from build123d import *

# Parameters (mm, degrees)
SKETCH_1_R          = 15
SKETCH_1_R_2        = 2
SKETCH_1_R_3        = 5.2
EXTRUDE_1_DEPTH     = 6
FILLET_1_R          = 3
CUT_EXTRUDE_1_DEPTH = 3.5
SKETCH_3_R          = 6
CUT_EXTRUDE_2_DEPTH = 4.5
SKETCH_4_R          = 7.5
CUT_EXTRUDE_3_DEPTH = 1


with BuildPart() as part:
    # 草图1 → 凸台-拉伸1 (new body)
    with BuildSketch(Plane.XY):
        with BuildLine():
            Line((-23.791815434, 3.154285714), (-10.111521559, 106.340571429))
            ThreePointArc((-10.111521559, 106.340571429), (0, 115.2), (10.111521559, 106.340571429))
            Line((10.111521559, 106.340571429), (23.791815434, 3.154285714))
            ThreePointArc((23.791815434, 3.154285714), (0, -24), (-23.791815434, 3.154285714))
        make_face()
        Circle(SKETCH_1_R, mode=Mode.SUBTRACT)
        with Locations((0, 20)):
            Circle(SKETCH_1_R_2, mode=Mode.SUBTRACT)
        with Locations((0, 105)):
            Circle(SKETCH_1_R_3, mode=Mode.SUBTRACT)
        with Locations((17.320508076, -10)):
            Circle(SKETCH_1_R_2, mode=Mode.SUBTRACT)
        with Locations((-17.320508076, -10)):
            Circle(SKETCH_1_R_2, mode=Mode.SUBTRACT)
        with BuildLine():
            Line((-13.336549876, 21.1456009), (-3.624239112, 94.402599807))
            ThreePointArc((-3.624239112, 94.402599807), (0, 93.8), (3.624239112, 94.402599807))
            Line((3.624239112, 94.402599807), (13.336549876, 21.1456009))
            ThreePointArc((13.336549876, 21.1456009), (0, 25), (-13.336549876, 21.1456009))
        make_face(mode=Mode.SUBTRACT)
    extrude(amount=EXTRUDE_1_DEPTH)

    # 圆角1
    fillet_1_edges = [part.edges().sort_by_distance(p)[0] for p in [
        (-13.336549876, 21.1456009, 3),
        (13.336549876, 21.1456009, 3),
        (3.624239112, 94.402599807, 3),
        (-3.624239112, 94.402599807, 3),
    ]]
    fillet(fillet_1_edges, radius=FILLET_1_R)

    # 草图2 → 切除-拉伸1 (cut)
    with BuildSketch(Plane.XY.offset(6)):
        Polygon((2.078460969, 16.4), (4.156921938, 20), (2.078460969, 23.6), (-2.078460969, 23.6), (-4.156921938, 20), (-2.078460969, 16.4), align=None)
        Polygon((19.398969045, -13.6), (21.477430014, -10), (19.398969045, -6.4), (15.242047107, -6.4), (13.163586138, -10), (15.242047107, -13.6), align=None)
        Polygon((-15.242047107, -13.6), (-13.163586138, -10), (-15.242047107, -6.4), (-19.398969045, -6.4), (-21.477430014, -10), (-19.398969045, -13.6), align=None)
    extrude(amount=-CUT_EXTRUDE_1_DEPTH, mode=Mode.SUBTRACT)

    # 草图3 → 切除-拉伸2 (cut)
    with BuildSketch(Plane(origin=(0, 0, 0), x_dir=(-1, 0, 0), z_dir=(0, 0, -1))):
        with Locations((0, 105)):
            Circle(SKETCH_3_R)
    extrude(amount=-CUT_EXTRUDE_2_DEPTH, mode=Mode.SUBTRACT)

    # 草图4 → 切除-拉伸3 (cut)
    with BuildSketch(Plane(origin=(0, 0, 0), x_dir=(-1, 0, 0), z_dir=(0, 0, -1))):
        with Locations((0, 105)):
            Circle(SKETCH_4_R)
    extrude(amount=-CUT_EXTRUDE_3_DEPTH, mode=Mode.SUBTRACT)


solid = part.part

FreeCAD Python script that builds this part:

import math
import FreeCAD as App
import Part
import Sketcher
from FreeCAD import Vector
Q = App.Units.Quantity


def edges_at(feature, points):
    """Names of the edges that pass closest to the given points."""
    edges = feature.Shape.Edges
    near = lambda p: min(range(len(edges)), key=lambda i: edges[i].distToShape(Part.Vertex(*p))[0])
    return sorted({f"Edge{near(p) + 1}" for p in points})


def add_polygon(sketch, points):
    """Adds a closed chain of lines whose ends are joined by coincident constraints."""
    first, n = sketch.GeometryCount, len(points)
    for a, b in zip(points, points[1:] + points[:1]):
        sketch.addGeometry(Part.LineSegment(App.Vector(*a, 0), App.Vector(*b, 0)), False)
    for i in range(n):
        sketch.addConstraint(Sketcher.Constraint("Coincident", first + i, 2, first + (i + 1) % n, 1))

doc = App.newDocument("Part")
body = doc.addObject("PartDesign::Body", "Body")

# Sketch on XY plane
sketch1 = doc.addObject("Sketcher::SketchObject", "Sketch")
body.addObject(sketch1)
sketch1.AttachmentSupport = (doc.XY_Plane, [""])
sketch1.MapMode = "FlatFace"
sketch1.addGeometry([
    Part.LineSegment(Vector(-10.1, 106.3, 0), Vector(-23.8, 3.2, 0)),  # 0
    Part.ArcOfCircle(Part.Circle(Vector(0, 0, 0), Vector(0, 0, 1), 24), math.radians(172), math.radians(368)),  # 1
    Part.LineSegment(Vector(23.8, 3.2, 0), Vector(10.1, 106.3, 0)),  # 2
    Part.ArcOfCircle(Part.Circle(Vector(0, 105, 0), Vector(0, 0, 1), 10.2), math.radians(8), math.radians(172)),  # 3
    Part.Circle(Vector(17.3, -10, 0), Vector(0, 0, 1), 2),  # 4
    Part.Circle(Vector(0, 0, 0), Vector(0, 0, 1), 15),  # 5
    Part.Circle(Vector(-17.3, -10, 0), Vector(0, 0, 1), 2),  # 6
    Part.Circle(Vector(0, 20, 0), Vector(0, 0, 1), 2),  # 7
    Part.LineSegment(Vector(-13.3, 21.1, 0), Vector(-3.6, 94.4, 0)),  # 8
    Part.ArcOfCircle(Part.Circle(Vector(0, 105, 0), Vector(0, 0, 1), 11.2), math.radians(-109), math.radians(-71)),  # 9
    Part.LineSegment(Vector(3.6, 94.4, 0), Vector(13.3, 21.1, 0)),  # 10
    Part.ArcOfCircle(Part.Circle(Vector(0, 0, 0), Vector(0, 0, 1), 25), math.radians(58), math.radians(122)),  # 11
    Part.Circle(Vector(0, 105, 0), Vector(0, 0, 1), 5.2),  # 12
], False)
sketch1.addConstraint([
    Sketcher.Constraint("Tangent", 0, 2, 1, 1),
    Sketcher.Constraint("Tangent", 1, 2, 2, 1),
    Sketcher.Constraint("Tangent", 2, 2, 3, 1),
    Sketcher.Constraint("Tangent", 3, 2, 0, 1),
    Sketcher.Constraint("Coincident", 8, 2, 9, 1),
    Sketcher.Constraint("Coincident", 9, 2, 10, 1),
    Sketcher.Constraint("Coincident", 10, 2, 11, 1),
    Sketcher.Constraint("Coincident", 11, 2, 8, 1),
    Sketcher.Constraint("Coincident", 1, 3, -1, 1),
    Sketcher.Constraint("Coincident", 5, 3, -1, 1),
    Sketcher.Constraint("Coincident", 11, 3, -1, 1),
    Sketcher.Constraint("Coincident", 9, 3, 3, 3),
    Sketcher.Constraint("Coincident", 12, 3, 3, 3),
    Sketcher.Constraint("Equal", 4, 6),
    Sketcher.Constraint("Equal", 6, 7),
    Sketcher.Constraint("Symmetric", 4, 3, 6, 3, -2),
    Sketcher.Constraint("Symmetric", 8, 2, 9, 2, -2),
    Sketcher.Constraint("PointOnObject", 7, 3, -2),
    Sketcher.Constraint("Parallel", 0, 8),
    Sketcher.Constraint("Parallel", 2, 10),
    Sketcher.Constraint("Diameter", 4, 4.0),
    Sketcher.Constraint("Diameter", 5, 30.0),
    Sketcher.Constraint("Radius", 1, 24.0),
    Sketcher.Constraint("Radius", 11, 25.0),
    Sketcher.Constraint("Diameter", 12, 10.4),
    Sketcher.Constraint("Radius", 3, 10.2),
    Sketcher.Constraint("Radius", 9, 11.2),
    Sketcher.Constraint("DistanceY", -1, 1, 3, 3, 105.0),
    Sketcher.Constraint("DistanceY", 4, 3, -1, 1, 10.0),
    Sketcher.Constraint("DistanceY", -1, 1, 7, 3, 20.0),
    Sketcher.Constraint("DistanceY", -1, 1, 8, 2, 94.4026),
    Sketcher.Constraint("DistanceX", -1, 1, 4, 3, 17.320508),
])
pad1 = doc.addObject("PartDesign::Pad", "Pad")
body.addObject(pad1)
pad1.Profile = sketch1
pad1.Length = 6
doc.recompute()

fillet = doc.addObject("PartDesign::Fillet", "Fillet")
body.addObject(fillet)
fillet.Base = (pad1, edges_at(pad1, [
    (-13.337, 21.146, 3),
    (13.337, 21.146, 3),
    (3.624, 94.403, 3),
    (-3.624, 94.403, 3),
]))
fillet.Radius = 3

# Sketch on XY plane
sketch2 = doc.addObject("Sketcher::SketchObject", "Sketch001")
body.addObject(sketch2)
sketch2.AttachmentSupport = (doc.XY_Plane, [""])
sketch2.MapMode = "FlatFace"
sketch2.AttachmentOffset = App.Placement(Vector(0, 0, 6), App.Rotation())
add_polygon(sketch2, [(2.1, 16.4), (4.2, 20), (2.1, 23.6), (-2.1, 23.6), (-4.2, 20), (-2.1, 16.4)])  # lines 0-5
add_polygon(sketch2, [(19.4, -13.6), (21.5, -10), (19.4, -6.4), (15.2, -6.4), (13.2, -10), (15.2, -13.6)])  # lines 6-11
add_polygon(sketch2, [(-15.2, -13.6), (-13.2, -10), (-15.2, -6.4), (-19.4, -6.4), (-21.5, -10), (-19.4, -13.6)])  # lines 12-17
sketch2.addConstraint([
    Sketcher.Constraint("Horizontal", 2),
    Sketcher.Constraint("Horizontal", 5),
    Sketcher.Constraint("Horizontal", 8),
    Sketcher.Constraint("Horizontal", 11),
    Sketcher.Constraint("Horizontal", 14),
    Sketcher.Constraint("Horizontal", 17),
    Sketcher.Constraint("Symmetric", 0, 2, 3, 2, -2),
    Sketcher.Constraint("Symmetric", 9, 2, 12, 2, -2),
    Sketcher.Constraint("Symmetric", 8, 2, 13, 2, -2),
    Sketcher.Constraint("Symmetric", 6, 2, 15, 2, -2),
    Sketcher.Constraint("Symmetric", 11, 2, 16, 2, -2),
    Sketcher.Constraint("Parallel", 0, 3),
    Sketcher.Constraint("Parallel", 1, 4),
    Sketcher.Constraint("Parallel", 3, 6),
    Sketcher.Constraint("Parallel", 4, 7),
    Sketcher.Constraint("Parallel", 6, 9),
    Sketcher.Constraint("Parallel", 7, 10),
    Sketcher.Constraint("Parallel", 9, 12),
    Sketcher.Constraint("Parallel", 10, 13),
    Sketcher.Constraint("Parallel", 12, 15),
    Sketcher.Constraint("Horizontal", 6, 2, 9, 2),
    Sketcher.Constraint("Vertical", 2, 2, 4, 2),
    Sketcher.Constraint("Vertical", 8, 2, 10, 2),
    Sketcher.Constraint("Equal", 5, 8),
    Sketcher.Constraint("Equal", 4, 6),
    Sketcher.Constraint("Angle", 0, Q("60 deg")),
    Sketcher.Constraint("DistanceY", -1, 1, 0, 2, 20.0),
    Sketcher.Constraint("DistanceY", 6, 2, -1, 1, 10.0),
    Sketcher.Constraint("DistanceY", -1, 1, 1, 2, 23.6),
    Sketcher.Constraint("DistanceX", 2, 2, 2, 1, 4.156922),
    Sketcher.Constraint("DistanceX", -1, 1, 6, 2, 21.47743),
])
pocket1 = doc.addObject("PartDesign::Pocket", "Pocket")
body.addObject(pocket1)
pocket1.Profile = sketch2
pocket1.Length = 3.5

# Sketch on XY plane
sketch3 = doc.addObject("Sketcher::SketchObject", "Sketch002")
body.addObject(sketch3)
sketch3.AttachmentSupport = (doc.XY_Plane, [""])
sketch3.MapMode = "FlatFace"
sketch3.addGeometry(Part.Circle(Vector(0, 105, 0), Vector(0, 0, 1), 6), False)
sketch3.addConstraint([
    Sketcher.Constraint("PointOnObject", 0, 3, -2),
    Sketcher.Constraint("Diameter", 0, 12.0),
    Sketcher.Constraint("DistanceY", -1, 1, 0, 3, 105.0),
])
pocket2 = doc.addObject("PartDesign::Pocket", "Pocket001")
body.addObject(pocket2)
pocket2.Profile = sketch3
pocket2.Length = 4.5
pocket2.Reversed = True

# Sketch on XY plane
sketch4 = doc.addObject("Sketcher::SketchObject", "Sketch003")
body.addObject(sketch4)
sketch4.AttachmentSupport = (doc.XY_Plane, [""])
sketch4.MapMode = "FlatFace"
sketch4.addGeometry(Part.Circle(Vector(0, 105, 0), Vector(0, 0, 1), 8), False)
sketch4.addConstraint([
    Sketcher.Constraint("PointOnObject", 0, 3, -2),
    Sketcher.Constraint("Diameter", 0, 15.0),
    Sketcher.Constraint("DistanceY", -1, 1, 0, 3, 105.0),
])
pocket3 = doc.addObject("PartDesign::Pocket", "Pocket002")
body.addObject(pocket3)
pocket3.Profile = sketch4
pocket3.Length = 1
pocket3.Reversed = True

doc.recompute()
